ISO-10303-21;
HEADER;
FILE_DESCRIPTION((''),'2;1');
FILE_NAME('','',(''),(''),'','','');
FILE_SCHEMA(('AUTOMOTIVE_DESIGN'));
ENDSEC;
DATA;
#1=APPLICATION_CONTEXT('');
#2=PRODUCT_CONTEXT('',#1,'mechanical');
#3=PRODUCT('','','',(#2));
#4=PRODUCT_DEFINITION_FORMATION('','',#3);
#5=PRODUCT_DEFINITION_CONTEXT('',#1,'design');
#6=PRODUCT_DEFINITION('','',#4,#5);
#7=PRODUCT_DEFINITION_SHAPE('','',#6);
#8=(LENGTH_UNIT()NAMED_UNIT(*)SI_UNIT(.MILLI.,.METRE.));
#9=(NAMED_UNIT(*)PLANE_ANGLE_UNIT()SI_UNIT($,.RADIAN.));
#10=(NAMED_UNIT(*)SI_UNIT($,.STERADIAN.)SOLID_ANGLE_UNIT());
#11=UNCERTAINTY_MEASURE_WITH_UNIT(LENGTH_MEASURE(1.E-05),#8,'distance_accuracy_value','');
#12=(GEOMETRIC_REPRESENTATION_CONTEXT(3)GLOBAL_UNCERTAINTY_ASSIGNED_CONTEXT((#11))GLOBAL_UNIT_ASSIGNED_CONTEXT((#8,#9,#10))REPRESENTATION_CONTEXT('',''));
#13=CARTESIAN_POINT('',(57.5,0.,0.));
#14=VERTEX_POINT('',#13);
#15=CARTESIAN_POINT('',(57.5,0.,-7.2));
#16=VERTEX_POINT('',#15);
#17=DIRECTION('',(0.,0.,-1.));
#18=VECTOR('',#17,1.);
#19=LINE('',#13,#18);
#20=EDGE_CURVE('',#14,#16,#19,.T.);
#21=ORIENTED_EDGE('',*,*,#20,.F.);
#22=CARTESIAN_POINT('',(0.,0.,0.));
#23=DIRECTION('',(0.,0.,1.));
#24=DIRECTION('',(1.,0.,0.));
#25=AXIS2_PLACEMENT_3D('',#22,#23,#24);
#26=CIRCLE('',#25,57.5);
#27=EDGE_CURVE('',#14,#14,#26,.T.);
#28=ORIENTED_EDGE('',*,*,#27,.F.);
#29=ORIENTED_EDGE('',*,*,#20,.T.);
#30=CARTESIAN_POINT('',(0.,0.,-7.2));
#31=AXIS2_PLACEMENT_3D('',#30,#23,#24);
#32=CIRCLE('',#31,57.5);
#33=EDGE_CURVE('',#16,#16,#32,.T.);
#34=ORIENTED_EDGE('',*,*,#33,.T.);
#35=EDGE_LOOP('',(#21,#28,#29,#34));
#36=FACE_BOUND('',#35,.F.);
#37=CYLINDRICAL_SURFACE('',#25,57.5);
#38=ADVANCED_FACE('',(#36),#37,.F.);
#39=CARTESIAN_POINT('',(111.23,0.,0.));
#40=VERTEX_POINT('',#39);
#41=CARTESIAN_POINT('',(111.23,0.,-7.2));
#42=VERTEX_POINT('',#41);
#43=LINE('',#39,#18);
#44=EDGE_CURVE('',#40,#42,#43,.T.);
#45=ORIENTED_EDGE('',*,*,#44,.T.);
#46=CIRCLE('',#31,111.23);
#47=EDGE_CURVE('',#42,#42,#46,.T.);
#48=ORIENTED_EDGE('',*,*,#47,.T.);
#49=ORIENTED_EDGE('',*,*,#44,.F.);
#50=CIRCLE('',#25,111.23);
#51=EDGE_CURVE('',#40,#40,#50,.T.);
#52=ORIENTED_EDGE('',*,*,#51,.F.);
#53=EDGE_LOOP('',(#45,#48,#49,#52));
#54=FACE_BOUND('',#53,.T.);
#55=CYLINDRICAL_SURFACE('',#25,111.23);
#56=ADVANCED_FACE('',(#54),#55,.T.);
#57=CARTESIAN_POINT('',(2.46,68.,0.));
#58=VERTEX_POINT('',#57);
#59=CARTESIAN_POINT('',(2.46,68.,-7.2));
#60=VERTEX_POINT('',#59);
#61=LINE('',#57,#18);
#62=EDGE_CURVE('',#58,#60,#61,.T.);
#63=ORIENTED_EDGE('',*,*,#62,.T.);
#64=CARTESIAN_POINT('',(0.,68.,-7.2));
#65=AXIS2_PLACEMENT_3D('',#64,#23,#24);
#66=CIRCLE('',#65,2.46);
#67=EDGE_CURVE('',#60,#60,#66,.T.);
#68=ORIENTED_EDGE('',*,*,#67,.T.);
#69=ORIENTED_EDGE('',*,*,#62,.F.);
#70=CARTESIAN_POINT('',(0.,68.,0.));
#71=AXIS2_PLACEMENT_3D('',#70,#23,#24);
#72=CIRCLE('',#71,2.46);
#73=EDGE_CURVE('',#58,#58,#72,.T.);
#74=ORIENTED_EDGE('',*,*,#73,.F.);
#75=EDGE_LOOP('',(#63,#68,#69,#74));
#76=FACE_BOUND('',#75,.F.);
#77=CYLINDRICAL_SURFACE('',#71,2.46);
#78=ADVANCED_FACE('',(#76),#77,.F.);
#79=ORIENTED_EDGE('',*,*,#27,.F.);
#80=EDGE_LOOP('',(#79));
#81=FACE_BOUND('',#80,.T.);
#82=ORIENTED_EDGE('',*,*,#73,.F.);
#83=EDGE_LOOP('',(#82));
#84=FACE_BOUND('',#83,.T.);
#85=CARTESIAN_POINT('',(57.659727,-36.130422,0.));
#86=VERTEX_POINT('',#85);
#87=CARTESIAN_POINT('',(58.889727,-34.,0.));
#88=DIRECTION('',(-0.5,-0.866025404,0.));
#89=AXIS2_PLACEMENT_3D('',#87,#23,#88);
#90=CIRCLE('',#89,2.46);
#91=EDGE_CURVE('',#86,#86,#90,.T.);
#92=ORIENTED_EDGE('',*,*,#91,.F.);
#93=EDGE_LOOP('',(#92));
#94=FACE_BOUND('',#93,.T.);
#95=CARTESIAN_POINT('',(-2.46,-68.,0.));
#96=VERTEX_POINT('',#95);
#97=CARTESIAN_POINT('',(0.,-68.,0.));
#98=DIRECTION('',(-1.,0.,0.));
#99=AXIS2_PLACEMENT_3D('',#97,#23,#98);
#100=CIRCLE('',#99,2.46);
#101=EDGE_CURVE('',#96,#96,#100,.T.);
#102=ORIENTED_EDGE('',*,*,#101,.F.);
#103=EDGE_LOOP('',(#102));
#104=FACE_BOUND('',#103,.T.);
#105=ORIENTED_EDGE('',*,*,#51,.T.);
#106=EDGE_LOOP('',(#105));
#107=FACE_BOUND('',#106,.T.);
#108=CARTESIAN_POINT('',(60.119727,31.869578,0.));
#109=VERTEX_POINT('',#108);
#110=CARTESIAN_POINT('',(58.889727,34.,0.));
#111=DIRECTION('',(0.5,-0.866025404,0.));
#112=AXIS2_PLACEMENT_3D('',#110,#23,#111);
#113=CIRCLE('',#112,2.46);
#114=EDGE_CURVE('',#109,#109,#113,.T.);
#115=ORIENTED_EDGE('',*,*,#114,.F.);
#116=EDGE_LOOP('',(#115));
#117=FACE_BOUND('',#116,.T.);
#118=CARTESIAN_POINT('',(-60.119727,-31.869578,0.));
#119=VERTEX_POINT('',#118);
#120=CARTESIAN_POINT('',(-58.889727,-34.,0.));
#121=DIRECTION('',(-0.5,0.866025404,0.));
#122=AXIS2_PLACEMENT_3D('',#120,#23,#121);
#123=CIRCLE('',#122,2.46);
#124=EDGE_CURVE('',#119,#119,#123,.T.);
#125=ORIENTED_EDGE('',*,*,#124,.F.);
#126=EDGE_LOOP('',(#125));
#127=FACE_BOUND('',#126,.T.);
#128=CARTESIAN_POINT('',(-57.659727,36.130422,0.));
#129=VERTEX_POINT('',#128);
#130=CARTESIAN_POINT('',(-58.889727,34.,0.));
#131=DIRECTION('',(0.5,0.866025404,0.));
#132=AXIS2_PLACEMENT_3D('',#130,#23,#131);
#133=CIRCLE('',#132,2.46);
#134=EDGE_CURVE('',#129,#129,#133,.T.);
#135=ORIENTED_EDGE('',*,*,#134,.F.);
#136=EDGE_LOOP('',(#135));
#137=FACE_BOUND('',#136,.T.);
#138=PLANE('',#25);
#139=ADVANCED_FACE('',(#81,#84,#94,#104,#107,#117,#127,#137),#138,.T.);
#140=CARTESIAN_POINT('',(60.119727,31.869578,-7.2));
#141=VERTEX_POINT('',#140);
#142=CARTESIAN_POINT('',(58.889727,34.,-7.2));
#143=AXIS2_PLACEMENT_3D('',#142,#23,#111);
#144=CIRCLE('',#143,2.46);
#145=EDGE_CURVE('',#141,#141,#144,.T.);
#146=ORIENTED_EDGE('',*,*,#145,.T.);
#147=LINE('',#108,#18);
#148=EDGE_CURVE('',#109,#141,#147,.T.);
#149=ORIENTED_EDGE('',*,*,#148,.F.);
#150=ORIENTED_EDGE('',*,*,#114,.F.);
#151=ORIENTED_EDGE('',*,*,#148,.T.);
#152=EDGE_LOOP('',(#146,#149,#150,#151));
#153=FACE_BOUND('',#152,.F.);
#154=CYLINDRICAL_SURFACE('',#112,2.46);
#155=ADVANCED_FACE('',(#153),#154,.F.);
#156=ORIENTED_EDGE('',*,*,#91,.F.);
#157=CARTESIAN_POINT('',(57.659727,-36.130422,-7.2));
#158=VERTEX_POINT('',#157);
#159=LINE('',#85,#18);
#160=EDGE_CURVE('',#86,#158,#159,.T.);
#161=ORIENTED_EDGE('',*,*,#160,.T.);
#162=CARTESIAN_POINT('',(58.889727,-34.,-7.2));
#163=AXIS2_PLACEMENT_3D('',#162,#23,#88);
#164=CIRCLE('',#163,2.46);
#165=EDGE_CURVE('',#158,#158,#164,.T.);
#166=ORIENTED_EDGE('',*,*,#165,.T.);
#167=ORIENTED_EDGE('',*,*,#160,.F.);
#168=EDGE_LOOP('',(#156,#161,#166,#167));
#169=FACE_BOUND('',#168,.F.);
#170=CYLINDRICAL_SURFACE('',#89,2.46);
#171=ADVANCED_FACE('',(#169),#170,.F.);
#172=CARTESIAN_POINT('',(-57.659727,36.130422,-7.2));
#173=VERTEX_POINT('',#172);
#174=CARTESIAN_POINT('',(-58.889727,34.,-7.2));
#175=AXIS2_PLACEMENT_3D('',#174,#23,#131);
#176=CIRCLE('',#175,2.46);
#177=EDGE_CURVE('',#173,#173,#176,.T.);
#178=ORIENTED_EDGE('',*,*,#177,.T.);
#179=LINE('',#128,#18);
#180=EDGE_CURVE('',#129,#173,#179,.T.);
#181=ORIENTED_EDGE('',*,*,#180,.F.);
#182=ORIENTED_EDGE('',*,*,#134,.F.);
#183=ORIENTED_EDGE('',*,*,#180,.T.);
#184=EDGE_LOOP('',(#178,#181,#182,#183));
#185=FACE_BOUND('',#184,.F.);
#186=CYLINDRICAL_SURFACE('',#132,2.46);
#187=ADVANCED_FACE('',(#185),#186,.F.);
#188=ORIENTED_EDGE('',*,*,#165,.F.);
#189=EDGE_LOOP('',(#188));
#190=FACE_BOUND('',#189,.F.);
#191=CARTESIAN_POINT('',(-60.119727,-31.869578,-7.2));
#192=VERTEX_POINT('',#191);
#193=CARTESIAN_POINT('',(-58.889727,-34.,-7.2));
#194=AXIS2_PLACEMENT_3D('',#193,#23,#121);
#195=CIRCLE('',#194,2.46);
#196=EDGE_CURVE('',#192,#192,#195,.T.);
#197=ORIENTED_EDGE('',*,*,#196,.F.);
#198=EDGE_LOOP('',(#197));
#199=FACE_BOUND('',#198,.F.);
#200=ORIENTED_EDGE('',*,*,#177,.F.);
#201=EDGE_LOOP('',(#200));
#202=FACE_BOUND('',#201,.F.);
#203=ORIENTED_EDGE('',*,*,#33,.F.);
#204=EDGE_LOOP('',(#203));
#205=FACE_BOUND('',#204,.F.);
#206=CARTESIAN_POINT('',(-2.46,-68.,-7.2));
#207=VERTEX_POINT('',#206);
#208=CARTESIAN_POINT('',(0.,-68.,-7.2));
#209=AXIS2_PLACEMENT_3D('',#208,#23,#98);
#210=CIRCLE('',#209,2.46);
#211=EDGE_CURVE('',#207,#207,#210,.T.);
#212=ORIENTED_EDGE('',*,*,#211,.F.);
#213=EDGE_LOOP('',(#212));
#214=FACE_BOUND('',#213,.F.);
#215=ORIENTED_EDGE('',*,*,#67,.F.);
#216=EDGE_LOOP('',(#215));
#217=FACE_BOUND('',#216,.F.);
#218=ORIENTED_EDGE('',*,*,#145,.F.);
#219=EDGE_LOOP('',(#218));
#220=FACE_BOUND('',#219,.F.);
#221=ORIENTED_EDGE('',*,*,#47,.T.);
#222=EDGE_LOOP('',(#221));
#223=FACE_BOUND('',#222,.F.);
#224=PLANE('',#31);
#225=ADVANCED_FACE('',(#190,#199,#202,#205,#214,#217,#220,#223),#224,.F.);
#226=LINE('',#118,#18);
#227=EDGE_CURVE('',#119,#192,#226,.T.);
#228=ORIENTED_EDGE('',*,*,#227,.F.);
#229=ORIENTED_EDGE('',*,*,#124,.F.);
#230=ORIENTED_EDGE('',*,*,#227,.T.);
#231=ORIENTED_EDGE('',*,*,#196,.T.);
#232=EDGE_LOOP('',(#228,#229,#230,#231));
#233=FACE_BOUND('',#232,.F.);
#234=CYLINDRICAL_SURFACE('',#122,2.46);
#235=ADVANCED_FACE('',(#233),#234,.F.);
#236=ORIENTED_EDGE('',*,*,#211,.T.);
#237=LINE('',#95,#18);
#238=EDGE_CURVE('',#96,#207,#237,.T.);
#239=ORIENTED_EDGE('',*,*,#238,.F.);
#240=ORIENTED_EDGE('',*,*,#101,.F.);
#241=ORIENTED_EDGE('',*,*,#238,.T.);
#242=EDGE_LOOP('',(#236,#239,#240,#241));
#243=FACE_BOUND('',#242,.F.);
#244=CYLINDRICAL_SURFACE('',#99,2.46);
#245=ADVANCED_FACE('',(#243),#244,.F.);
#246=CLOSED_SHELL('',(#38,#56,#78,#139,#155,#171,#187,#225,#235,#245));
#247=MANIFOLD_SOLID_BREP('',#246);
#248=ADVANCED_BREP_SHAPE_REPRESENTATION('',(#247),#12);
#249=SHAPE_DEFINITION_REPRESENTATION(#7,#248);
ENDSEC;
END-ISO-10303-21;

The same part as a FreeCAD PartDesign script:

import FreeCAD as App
import Part
import Sketcher

doc = App.newDocument("Part")
body = doc.addObject("PartDesign::Body", "Body")

sketch1 = body.newObject("Sketcher::SketchObject", "Sketch")
sketch1.AttachmentSupport = (doc.getObject("XY_Plane"), [""])
sketch1.MapMode = "FlatFace"
sketch1.addGeometry([
    Part.Circle(App.Vector(0, 0, 0), App.Vector(0, 0, 1), 111),
    Part.Circle(App.Vector(0, 0, 0), App.Vector(0, 0, 1), 58),
], False)
sketch1.addConstraint([
    Sketcher.Constraint("Coincident", 0, 3, -1, 1),
    Sketcher.Constraint("Coincident", 1, 3, -1, 1),
    Sketcher.Constraint("Diameter", 1, 115.0),
    Sketcher.Constraint("Diameter", 0, 222.46),
])
pad1 = body.newObject("PartDesign::Pad", "Pad")
pad1.Profile = sketch1
pad1.Length = 7.2
pad1.Reversed = True

sketch2 = body.newObject("Sketcher::SketchObject", "Sketch001")
sketch2.AttachmentSupport = (doc.getObject("XY_Plane"), [""])
sketch2.MapMode = "FlatFace"
sketch2.addGeometry(Part.Circle(App.Vector(0, 68, 0), App.Vector(0, 0, 1), 2.5), False)
sketch2.addConstraint([
    Sketcher.Constraint("PointOnObject", 0, 3, -2),
    Sketcher.Constraint("Diameter", 0, 4.92),
    Sketcher.Constraint("DistanceY", -1, 1, 0, 3, 68.0),
])
pocket1 = body.newObject("PartDesign::Pocket", "Pocket")
pocket1.Profile = sketch2
pocket1.Length = 644.3251
pocket1.Midplane = True
doc.recompute()

polarpattern = body.newObject("PartDesign::PolarPattern", "PolarPattern")
polarpattern.Originals = [pocket1]
polarpattern.Axis = (doc.getObject("Z_Axis"), [""])
polarpattern.Angle = 360
polarpattern.Occurrences = 6
body.Tip = polarpattern

doc.recompute()
